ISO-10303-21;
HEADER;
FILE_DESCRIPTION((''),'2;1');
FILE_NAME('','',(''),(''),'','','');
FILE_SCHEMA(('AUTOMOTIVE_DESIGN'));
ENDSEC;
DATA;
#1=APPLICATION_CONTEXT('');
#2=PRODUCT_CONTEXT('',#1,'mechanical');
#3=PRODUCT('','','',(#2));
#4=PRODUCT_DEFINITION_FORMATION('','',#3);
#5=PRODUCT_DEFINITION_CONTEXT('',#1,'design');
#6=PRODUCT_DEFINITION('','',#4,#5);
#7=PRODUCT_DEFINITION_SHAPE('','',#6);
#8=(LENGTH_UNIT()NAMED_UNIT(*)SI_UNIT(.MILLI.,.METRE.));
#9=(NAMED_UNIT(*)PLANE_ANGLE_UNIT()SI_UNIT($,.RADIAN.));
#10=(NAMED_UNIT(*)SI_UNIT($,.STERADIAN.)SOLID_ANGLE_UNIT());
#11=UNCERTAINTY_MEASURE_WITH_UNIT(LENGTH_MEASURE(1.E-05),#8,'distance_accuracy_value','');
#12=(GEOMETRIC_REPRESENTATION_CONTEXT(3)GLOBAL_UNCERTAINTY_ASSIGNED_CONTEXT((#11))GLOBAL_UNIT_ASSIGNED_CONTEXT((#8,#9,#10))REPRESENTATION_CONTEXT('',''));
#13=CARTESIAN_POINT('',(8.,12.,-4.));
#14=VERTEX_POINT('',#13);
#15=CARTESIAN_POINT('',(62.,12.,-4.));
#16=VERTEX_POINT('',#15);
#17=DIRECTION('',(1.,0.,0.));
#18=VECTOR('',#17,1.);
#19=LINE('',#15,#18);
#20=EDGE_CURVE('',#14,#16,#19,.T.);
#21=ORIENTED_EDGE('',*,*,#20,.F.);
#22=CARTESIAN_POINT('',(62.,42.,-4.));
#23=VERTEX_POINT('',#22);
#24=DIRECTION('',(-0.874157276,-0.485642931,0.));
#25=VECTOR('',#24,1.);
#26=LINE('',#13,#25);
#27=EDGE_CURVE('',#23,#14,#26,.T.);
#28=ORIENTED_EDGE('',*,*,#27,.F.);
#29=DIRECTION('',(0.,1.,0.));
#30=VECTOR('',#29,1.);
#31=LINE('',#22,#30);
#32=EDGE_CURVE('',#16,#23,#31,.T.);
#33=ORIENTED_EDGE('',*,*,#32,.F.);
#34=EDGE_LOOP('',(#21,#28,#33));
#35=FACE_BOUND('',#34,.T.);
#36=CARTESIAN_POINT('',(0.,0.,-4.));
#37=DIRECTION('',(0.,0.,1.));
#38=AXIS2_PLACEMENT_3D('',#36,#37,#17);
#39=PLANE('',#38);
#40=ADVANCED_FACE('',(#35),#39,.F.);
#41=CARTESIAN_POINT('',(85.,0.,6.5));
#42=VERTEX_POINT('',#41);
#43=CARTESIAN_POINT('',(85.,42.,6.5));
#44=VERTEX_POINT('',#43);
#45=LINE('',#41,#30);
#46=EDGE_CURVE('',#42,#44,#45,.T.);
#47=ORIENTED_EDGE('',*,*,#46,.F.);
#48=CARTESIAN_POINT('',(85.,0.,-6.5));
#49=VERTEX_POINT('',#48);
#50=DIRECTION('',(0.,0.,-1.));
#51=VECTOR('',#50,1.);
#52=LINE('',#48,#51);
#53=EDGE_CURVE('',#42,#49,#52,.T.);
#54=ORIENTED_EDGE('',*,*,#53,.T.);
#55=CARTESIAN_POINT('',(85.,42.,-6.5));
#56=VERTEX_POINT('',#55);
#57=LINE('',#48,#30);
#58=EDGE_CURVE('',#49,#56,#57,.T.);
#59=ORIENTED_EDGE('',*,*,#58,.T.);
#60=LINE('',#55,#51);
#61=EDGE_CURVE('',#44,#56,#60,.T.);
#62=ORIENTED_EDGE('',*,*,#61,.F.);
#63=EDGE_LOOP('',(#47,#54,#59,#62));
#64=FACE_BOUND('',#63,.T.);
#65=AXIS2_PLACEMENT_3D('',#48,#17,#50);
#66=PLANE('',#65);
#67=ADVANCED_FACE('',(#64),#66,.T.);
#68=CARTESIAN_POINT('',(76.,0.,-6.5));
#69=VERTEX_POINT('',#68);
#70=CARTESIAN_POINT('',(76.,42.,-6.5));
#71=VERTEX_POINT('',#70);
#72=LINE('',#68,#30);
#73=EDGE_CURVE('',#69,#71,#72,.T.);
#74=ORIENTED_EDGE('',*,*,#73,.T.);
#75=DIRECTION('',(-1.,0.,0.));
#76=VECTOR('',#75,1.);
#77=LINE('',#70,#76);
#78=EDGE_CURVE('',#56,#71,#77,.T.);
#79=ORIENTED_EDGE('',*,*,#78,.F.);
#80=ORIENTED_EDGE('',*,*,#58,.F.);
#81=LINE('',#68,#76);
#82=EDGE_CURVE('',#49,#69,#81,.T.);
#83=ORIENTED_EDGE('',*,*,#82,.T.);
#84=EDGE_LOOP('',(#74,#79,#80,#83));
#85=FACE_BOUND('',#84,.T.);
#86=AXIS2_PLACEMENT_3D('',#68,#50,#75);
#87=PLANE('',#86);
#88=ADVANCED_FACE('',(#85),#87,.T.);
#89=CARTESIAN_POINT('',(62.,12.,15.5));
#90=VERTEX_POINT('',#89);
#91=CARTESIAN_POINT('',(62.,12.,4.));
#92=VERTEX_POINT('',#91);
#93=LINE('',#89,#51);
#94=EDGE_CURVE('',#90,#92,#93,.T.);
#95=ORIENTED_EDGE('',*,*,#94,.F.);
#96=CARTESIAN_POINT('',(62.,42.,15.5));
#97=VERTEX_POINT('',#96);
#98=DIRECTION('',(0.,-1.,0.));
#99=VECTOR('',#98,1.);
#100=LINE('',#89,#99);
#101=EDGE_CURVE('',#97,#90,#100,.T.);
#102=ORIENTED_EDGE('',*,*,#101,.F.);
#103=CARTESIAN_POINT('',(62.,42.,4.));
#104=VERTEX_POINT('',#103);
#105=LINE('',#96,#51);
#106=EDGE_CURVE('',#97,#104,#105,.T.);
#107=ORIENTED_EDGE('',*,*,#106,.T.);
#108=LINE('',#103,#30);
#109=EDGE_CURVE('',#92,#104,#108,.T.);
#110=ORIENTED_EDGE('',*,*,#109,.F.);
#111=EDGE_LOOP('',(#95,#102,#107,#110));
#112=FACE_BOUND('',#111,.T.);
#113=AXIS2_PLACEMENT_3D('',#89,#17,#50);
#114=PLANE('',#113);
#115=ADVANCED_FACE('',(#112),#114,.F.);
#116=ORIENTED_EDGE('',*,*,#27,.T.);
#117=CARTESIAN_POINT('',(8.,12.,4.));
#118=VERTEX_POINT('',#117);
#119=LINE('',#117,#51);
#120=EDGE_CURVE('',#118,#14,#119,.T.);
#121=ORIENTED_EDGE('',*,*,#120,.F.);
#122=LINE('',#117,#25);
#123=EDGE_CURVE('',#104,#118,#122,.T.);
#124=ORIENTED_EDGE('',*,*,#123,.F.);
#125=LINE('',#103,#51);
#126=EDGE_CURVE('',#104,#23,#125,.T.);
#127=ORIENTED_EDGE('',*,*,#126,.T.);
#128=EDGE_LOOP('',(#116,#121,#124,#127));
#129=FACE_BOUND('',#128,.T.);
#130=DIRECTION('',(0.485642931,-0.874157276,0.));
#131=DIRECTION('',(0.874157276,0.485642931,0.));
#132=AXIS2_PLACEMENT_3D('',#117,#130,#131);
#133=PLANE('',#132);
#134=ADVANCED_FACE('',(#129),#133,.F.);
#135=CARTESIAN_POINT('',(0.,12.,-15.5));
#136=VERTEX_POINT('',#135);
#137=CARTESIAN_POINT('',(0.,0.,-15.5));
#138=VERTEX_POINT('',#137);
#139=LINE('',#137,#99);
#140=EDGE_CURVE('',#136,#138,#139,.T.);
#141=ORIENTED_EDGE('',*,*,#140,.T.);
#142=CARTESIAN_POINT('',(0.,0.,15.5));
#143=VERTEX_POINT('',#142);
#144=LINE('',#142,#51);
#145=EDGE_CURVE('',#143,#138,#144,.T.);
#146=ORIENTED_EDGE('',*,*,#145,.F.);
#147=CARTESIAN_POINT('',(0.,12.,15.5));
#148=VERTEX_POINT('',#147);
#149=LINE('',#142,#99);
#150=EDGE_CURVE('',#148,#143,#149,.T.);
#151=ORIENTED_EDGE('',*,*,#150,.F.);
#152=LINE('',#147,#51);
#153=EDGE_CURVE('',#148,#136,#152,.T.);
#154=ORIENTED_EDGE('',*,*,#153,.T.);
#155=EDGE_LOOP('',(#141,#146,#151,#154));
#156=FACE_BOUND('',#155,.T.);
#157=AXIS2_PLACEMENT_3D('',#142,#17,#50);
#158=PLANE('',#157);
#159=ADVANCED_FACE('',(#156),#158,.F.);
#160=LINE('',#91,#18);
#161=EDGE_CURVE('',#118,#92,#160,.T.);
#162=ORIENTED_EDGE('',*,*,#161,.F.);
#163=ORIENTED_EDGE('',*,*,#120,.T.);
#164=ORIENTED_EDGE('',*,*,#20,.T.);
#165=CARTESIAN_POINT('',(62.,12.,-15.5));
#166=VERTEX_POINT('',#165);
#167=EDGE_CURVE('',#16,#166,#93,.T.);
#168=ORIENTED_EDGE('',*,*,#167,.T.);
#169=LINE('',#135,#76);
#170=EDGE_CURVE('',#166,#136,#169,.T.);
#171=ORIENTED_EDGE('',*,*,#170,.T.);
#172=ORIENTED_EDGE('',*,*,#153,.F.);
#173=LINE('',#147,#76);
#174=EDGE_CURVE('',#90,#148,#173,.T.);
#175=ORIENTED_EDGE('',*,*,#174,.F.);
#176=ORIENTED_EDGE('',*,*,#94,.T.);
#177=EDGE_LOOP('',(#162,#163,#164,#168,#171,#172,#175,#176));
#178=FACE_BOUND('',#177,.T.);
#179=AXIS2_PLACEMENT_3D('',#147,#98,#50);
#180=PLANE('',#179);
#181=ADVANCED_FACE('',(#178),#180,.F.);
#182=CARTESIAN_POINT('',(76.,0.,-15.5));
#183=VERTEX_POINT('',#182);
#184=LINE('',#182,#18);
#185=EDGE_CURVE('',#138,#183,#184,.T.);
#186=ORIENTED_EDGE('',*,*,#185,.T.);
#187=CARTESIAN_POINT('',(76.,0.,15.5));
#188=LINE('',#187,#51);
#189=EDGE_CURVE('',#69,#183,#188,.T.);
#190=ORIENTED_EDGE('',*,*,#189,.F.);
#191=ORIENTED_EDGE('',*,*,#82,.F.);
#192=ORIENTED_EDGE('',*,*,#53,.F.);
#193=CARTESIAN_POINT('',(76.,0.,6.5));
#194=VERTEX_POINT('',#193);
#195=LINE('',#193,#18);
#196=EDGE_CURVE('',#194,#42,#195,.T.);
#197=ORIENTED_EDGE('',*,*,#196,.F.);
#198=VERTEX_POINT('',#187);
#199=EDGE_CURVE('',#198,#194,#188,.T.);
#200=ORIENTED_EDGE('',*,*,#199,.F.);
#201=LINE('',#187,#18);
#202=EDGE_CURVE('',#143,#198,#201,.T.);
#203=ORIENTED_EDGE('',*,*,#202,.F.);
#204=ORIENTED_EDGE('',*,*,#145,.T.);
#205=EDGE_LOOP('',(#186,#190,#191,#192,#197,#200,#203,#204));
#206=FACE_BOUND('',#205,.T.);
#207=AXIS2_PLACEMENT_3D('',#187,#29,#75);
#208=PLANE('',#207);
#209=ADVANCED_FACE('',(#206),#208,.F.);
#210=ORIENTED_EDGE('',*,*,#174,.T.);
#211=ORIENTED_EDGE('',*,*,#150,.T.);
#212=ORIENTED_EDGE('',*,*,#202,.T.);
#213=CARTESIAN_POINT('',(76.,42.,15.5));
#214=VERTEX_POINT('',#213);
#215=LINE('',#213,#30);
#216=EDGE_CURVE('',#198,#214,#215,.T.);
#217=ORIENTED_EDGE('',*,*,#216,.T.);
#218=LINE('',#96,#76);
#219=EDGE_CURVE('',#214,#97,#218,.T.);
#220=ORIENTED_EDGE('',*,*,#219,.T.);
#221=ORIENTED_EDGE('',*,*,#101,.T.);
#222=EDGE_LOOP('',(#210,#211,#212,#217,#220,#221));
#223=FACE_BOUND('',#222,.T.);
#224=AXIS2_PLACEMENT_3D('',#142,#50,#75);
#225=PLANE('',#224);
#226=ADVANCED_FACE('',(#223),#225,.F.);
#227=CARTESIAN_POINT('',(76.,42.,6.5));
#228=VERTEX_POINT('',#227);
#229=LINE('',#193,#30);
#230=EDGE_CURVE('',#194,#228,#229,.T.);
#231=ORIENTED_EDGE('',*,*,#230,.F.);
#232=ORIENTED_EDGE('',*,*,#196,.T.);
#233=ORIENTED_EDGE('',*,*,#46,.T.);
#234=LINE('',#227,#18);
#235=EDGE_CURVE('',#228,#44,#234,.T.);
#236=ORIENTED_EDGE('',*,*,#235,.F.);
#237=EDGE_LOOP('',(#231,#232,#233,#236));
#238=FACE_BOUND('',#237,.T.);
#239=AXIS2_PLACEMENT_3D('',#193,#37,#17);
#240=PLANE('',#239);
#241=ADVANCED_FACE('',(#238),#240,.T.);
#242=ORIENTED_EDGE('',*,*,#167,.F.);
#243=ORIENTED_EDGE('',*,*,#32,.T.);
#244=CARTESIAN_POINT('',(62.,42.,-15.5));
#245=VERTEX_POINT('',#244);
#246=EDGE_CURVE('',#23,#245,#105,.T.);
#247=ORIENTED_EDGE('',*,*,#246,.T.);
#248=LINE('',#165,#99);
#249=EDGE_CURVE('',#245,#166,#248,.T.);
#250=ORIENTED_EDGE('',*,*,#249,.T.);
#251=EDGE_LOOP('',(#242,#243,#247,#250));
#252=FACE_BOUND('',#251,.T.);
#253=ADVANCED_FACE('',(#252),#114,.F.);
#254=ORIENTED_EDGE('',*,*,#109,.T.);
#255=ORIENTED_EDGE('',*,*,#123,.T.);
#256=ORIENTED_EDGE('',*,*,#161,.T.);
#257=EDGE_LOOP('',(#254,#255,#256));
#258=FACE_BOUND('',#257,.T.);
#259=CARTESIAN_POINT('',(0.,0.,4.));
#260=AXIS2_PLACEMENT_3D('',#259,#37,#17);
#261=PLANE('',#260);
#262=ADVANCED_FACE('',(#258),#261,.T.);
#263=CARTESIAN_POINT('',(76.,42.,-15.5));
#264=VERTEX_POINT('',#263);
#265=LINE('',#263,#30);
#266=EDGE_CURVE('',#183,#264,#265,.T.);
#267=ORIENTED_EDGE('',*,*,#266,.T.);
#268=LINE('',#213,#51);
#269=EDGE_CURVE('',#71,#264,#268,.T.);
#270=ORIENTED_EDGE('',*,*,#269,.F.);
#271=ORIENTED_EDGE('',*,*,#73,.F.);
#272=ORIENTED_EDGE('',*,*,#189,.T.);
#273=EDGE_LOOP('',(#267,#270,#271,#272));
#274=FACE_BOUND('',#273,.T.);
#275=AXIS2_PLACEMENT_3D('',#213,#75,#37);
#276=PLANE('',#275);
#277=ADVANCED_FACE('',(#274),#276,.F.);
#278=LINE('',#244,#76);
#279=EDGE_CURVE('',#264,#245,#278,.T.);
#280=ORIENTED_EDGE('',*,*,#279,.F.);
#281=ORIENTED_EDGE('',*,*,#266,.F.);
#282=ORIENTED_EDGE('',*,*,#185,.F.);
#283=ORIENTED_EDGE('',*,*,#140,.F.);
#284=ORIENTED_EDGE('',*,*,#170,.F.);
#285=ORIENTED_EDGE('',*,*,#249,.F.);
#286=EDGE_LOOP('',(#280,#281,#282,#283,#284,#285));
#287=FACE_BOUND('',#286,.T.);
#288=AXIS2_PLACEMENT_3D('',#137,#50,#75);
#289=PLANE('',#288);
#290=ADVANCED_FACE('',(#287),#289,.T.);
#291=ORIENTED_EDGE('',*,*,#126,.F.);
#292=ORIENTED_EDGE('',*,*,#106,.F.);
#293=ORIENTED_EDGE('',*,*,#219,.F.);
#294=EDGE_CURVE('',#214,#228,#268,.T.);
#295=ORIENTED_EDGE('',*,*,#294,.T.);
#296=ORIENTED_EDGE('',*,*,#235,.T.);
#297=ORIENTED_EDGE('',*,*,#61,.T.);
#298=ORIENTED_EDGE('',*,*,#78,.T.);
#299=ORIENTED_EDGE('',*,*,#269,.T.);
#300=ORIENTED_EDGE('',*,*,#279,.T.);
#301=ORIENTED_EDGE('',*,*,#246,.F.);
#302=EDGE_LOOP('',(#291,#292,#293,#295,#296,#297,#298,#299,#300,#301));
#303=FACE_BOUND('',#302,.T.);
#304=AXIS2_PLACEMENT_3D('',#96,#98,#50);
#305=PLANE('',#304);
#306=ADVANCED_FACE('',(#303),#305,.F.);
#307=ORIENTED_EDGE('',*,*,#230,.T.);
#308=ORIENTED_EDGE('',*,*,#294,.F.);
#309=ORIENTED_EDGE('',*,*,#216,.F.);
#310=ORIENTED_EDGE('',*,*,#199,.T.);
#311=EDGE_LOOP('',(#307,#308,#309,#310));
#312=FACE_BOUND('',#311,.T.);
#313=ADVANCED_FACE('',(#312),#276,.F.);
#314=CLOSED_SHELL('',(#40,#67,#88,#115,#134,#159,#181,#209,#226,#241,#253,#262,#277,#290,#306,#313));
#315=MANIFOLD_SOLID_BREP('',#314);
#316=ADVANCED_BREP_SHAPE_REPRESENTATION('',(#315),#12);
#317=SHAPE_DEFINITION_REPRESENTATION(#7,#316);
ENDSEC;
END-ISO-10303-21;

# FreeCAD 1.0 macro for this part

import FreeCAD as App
import Part
import Sketcher
from FreeCAD import Vector
Q = App.Units.Quantity

doc = App.newDocument("Part")
body = doc.addObject("PartDesign::Body", "Body")

# Sketch on XY plane
sketch1 = body.newObject("Sketcher::SketchObject", "Sketch")
sketch1.AttachmentSupport = (doc.getObject("XY_Plane"), [""])
sketch1.MapMode = "FlatFace"
sketch1.addGeometry(Part.LineSegment(Vector(0, 12, 0), Vector(0, 0, 0)), False)
sketch1.addGeometry(Part.LineSegment(Vector(0, 0, 0), Vector(76, 0, 0)), False)
sketch1.addGeometry(Part.LineSegment(Vector(76, 0, 0), Vector(76, 42, 0)), False)
sketch1.addGeometry(Part.LineSegment(Vector(76, 42, 0), Vector(62, 42, 0)), False)
sketch1.addGeometry(Part.LineSegment(Vector(62, 42, 0), Vector(62, 12, 0)), False)
sketch1.addGeometry(Part.LineSegment(Vector(62, 12, 0), Vector(0, 12, 0)), False)
sketch1.addConstraint(Sketcher.Constraint("Coincident", 0, 2, 1, 1))
sketch1.addConstraint(Sketcher.Constraint("Coincident", 1, 2, 2, 1))
sketch1.addConstraint(Sketcher.Constraint("Coincident", 2, 2, 3, 1))
sketch1.addConstraint(Sketcher.Constraint("Coincident", 3, 2, 4, 1))
sketch1.addConstraint(Sketcher.Constraint("Coincident", 4, 2, 5, 1))
sketch1.addConstraint(Sketcher.Constraint("Coincident", 5, 2, 0, 1))
sketch1.addConstraint(Sketcher.Constraint("Vertical", 0))
sketch1.addConstraint(Sketcher.Constraint("Horizontal", 1))
sketch1.addConstraint(Sketcher.Constraint("Vertical", 2))
sketch1.addConstraint(Sketcher.Constraint("Horizontal", 3))
sketch1.addConstraint(Sketcher.Constraint("Vertical", 4))
sketch1.addConstraint(Sketcher.Constraint("Horizontal", 5))
sketch1.addConstraint(Sketcher.Constraint("Coincident", 0, 2, -1, 1))
sketch1.addConstraint(Sketcher.Constraint("DistanceX", 1, 1, 1, 2, Q("76 mm")))
sketch1.addConstraint(Sketcher.Constraint("DistanceX", 3, 2, 3, 1, Q("14 mm")))
sketch1.addConstraint(Sketcher.Constraint("DistanceY", 0, 2, 0, 1, Q("12 mm")))
sketch1.addConstraint(Sketcher.Constraint("DistanceY", 2, 1, 2, 2, Q("42 mm")))
pad1 = body.newObject("PartDesign::Pad", "Pad")
pad1.Profile = sketch1
pad1.Length = 31
pad1.Midplane = True

# Sketch on XY plane
sketch2 = body.newObject("Sketcher::SketchObject", "Sketch001")
sketch2.AttachmentSupport = (doc.getObject("XY_Plane"), [""])
sketch2.MapMode = "FlatFace"
sketch2.addGeometry(Part.LineSegment(Vector(62, 42, 0), Vector(8, 12, 0)), False)
sketch2.addGeometry(Part.LineSegment(Vector(8, 12, 0), Vector(62, 12, 0)), False)
sketch2.addGeometry(Part.LineSegment(Vector(62, 12, 0), Vector(62, 42, 0)), False)
sketch2.addConstraint(Sketcher.Constraint("Coincident", 0, 2, 1, 1))
sketch2.addConstraint(Sketcher.Constraint("Coincident", 1, 2, 2, 1))
sketch2.addConstraint(Sketcher.Constraint("Coincident", 2, 2, 0, 1))
sketch2.addConstraint(Sketcher.Constraint("Horizontal", 1))
sketch2.addConstraint(Sketcher.Constraint("Vertical", 2))
sketch2.addConstraint(Sketcher.Constraint("DistanceX", 1, 1, 1, 2, Q("54 mm")))
sketch2.addConstraint(Sketcher.Constraint("DistanceY", 2, 1, 2, 2, Q("30 mm")))
sketch2.addConstraint(Sketcher.Constraint("DistanceX", -1, 1, 0, 2, Q("8 mm")))
sketch2.addConstraint(Sketcher.Constraint("DistanceY", -1, 1, 0, 2, Q("12 mm")))
pad2 = body.newObject("PartDesign::Pad", "Pad001")
pad2.Profile = sketch2
pad2.Length = 8
pad2.Midplane = True

# Sketch on XZ plane
sketch3 = body.newObject("Sketcher::SketchObject", "Sketch002")
sketch3.AttachmentSupport = (doc.getObject("XZ_Plane"), [""])
sketch3.MapMode = "FlatFace"
sketch3.AttachmentOffset = App.Placement(Vector(0, 0, -42), App.Rotation())
sketch3.addGeometry(Part.LineSegment(Vector(76, -6, 0), Vector(76, 6, 0)), False)
sketch3.addGeometry(Part.LineSegment(Vector(76, 6, 0), Vector(85, 6, 0)), False)
sketch3.addGeometry(Part.LineSegment(Vector(85, 6, 0), Vector(85, -6, 0)), False)
sketch3.addGeometry(Part.LineSegment(Vector(85, -6, 0), Vector(76, -6, 0)), False)
sketch3.addConstraint(Sketcher.Constraint("Coincident", 0, 2, 1, 1))
sketch3.addConstraint(Sketcher.Constraint("Coincident", 1, 2, 2, 1))
sketch3.addConstraint(Sketcher.Constraint("Coincident", 2, 2, 3, 1))
sketch3.addConstraint(Sketcher.Constraint("Coincident", 3, 2, 0, 1))
sketch3.addConstraint(Sketcher.Constraint("Vertical", 0))
sketch3.addConstraint(Sketcher.Constraint("Horizontal", 1))
sketch3.addConstraint(Sketcher.Constraint("Vertical", 2))
sketch3.addConstraint(Sketcher.Constraint("Horizontal", 3))
sketch3.addConstraint(Sketcher.Constraint("DistanceX", 1, 1, 1, 2, Q("9 mm")))
sketch3.addConstraint(Sketcher.Constraint("DistanceY", 0, 1, 0, 2, Q("13 mm")))
sketch3.addConstraint(Sketcher.Constraint("DistanceX", -1, 1, 0, 2, Q("76 mm")))
sketch3.addConstraint(Sketcher.Constraint("DistanceY", -1, 1, 0, 2, Q("6.5 mm")))
pad3 = body.newObject("PartDesign::Pad", "Pad002")
pad3.Profile = sketch3
pad3.Length = 42

doc.recompute()
